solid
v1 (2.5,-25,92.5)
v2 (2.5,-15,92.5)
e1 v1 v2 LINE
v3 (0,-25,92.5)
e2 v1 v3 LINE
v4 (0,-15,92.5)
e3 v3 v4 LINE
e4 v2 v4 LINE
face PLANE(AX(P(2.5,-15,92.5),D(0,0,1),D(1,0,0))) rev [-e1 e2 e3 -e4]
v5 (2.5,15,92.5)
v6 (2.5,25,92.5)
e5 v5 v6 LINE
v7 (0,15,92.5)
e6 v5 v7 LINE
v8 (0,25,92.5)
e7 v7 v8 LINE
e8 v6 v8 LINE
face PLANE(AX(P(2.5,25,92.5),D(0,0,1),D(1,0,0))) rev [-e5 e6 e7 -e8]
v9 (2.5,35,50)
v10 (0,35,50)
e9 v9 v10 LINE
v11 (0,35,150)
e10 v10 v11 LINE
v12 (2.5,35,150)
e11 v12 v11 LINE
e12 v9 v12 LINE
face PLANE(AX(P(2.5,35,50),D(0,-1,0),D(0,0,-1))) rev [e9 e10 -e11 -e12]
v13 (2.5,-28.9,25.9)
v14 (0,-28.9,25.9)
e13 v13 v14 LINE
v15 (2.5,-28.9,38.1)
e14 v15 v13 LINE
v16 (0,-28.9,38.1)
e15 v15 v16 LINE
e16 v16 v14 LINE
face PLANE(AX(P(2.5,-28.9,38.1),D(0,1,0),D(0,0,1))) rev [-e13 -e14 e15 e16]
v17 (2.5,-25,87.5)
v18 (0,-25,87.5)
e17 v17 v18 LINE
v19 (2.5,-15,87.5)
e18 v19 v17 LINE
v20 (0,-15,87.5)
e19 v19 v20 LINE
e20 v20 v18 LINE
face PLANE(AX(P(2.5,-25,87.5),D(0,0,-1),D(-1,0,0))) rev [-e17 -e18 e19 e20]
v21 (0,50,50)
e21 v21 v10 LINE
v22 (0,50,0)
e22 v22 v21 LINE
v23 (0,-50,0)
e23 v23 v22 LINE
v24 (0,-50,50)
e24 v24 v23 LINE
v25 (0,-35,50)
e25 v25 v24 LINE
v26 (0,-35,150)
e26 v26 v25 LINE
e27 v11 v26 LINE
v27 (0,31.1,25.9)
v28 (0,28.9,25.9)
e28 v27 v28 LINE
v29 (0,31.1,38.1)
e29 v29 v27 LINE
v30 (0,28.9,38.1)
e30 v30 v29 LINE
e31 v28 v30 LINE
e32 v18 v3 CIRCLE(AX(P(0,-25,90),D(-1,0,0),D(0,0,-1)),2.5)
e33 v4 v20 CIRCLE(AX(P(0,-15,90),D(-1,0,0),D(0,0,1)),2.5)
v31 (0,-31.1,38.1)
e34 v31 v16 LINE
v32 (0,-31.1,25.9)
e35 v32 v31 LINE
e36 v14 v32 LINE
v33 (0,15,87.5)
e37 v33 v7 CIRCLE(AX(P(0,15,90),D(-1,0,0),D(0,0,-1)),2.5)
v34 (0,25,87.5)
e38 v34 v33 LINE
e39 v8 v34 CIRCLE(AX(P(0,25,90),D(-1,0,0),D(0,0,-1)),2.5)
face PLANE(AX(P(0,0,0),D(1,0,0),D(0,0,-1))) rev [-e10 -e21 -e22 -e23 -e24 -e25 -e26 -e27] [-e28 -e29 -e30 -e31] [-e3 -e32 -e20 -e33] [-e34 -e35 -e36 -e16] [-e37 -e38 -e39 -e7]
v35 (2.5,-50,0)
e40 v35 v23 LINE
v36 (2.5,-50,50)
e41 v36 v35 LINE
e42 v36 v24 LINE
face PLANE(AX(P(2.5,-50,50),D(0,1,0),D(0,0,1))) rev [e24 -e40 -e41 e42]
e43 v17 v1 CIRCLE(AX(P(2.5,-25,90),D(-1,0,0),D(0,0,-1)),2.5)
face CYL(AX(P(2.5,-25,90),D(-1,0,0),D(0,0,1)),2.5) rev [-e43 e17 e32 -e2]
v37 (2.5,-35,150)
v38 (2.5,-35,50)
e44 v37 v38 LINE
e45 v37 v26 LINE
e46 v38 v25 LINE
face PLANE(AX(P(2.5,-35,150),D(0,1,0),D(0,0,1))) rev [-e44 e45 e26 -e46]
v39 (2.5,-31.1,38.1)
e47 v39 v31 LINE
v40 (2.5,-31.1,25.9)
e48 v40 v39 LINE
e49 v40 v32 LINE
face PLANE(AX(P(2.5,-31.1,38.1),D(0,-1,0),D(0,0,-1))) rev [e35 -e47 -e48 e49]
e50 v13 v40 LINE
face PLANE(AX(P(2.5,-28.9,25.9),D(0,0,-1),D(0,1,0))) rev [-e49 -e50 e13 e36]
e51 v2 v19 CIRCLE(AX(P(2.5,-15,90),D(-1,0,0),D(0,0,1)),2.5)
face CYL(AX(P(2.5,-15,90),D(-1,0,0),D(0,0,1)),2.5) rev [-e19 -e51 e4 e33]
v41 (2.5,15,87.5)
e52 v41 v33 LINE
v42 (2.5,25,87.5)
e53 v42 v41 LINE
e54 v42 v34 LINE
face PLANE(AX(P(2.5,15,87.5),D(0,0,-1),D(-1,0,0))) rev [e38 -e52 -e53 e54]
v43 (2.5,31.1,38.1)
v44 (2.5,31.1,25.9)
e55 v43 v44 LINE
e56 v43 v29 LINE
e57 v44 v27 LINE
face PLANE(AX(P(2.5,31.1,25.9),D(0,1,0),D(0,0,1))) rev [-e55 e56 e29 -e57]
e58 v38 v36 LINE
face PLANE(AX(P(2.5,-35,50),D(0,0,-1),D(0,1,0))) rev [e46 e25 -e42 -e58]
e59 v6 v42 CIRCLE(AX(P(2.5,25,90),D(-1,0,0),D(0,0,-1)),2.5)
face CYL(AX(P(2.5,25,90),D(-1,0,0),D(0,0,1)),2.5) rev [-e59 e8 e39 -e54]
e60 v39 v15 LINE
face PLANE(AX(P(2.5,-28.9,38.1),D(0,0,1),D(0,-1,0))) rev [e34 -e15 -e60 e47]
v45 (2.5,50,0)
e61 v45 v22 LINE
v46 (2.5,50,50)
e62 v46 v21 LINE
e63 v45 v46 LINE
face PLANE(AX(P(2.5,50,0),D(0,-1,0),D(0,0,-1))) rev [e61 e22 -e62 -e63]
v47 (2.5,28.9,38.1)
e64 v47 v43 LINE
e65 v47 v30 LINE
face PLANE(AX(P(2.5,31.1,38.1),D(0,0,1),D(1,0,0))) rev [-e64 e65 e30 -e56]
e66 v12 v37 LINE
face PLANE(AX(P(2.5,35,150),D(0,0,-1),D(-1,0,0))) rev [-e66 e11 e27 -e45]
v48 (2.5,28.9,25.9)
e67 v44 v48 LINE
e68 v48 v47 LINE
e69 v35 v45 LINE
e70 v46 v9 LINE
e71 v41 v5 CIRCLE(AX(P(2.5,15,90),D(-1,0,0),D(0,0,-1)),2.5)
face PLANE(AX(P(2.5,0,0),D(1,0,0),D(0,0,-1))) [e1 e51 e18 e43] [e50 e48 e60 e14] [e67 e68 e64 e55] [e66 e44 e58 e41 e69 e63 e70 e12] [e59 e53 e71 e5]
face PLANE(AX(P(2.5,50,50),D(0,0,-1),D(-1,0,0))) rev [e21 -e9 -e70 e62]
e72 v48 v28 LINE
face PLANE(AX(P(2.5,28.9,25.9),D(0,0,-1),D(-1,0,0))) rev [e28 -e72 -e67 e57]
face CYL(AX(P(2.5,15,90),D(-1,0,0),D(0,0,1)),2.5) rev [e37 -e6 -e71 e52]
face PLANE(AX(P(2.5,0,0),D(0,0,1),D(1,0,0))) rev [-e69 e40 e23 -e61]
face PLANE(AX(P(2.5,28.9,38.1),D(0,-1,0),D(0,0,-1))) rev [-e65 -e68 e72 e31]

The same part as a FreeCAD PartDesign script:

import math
import FreeCAD as App
import Part
import Sketcher
Q = App.Units.Quantity

doc = App.newDocument("Part")
params = doc.addObject("Spreadsheet::Sheet", "Params")
for row, (alias, value) in enumerate([
    ("sketch1_width", "15 mm"),
    ("sketch1_width2", "70 mm"),
    ("sketch1_height", "50 mm"),
    ("pad1_length", "2.5 mm"),
    ("sketch2_width", "2.2 mm"),
    ("sketch2_height", "12.2 mm"),
    ("sketch3_radius", "2.5 mm"),
    ("sketch3_width", "10 mm"),
], start=1):
    params.set(f"A{row}", alias)
    params.set(f"B{row}", "=" + value)
    params.setAlias(f"B{row}", alias)

body = doc.addObject("PartDesign::Body", "Body")

sketch1 = body.newObject("Sketcher::SketchObject", "Sketch")
sketch1.AttachmentSupport = (doc.getObject("YZ_Plane"), [""])
sketch1.MapMode = "FlatFace"
sketch1.addGeometry(Part.LineSegment(App.Vector(50, 0, 0), App.Vector(50, 50, 0)), False)
sketch1.addGeometry(Part.LineSegment(App.Vector(50, 50, 0), App.Vector(35, 50, 0)), False)
sketch1.addGeometry(Part.LineSegment(App.Vector(35, 50, 0), App.Vector(35, 150, 0)), False)
sketch1.addGeometry(Part.LineSegment(App.Vector(35, 150, 0), App.Vector(-35, 150, 0)), False)
sketch1.addGeometry(Part.LineSegment(App.Vector(-35, 150, 0), App.Vector(-35, 50, 0)), False)
sketch1.addGeometry(Part.LineSegment(App.Vector(-35, 50, 0), App.Vector(-50, 50, 0)), False)
sketch1.addGeometry(Part.LineSegment(App.Vector(-50, 50, 0), App.Vector(-50, 0, 0)), False)
sketch1.addGeometry(Part.LineSegment(App.Vector(-50, 0, 0), App.Vector(50, 0, 0)), False)
sketch1.addConstraint(Sketcher.Constraint("Coincident", 0, 2, 1, 1))
sketch1.addConstraint(Sketcher.Constraint("Coincident", 1, 2, 2, 1))
sketch1.addConstraint(Sketcher.Constraint("Coincident", 2, 2, 3, 1))
sketch1.addConstraint(Sketcher.Constraint("Coincident", 3, 2, 4, 1))
sketch1.addConstraint(Sketcher.Constraint("Coincident", 4, 2, 5, 1))
sketch1.addConstraint(Sketcher.Constraint("Coincident", 5, 2, 6, 1))
sketch1.addConstraint(Sketcher.Constraint("Coincident", 6, 2, 7, 1))
sketch1.addConstraint(Sketcher.Constraint("Coincident", 7, 2, 0, 1))
sketch1.addConstraint(Sketcher.Constraint("Vertical", 0))
sketch1.addConstraint(Sketcher.Constraint("Horizontal", 1))
sketch1.addConstraint(Sketcher.Constraint("Vertical", 2))
sketch1.addConstraint(Sketcher.Constraint("Horizontal", 3))
sketch1.addConstraint(Sketcher.Constraint("Vertical", 4))
sketch1.addConstraint(Sketcher.Constraint("Horizontal", 5))
sketch1.addConstraint(Sketcher.Constraint("Vertical", 6))
sketch1.addConstraint(Sketcher.Constraint("Horizontal", 7))
sketch1.addConstraint(Sketcher.Constraint("Symmetric", 6, 2, 7, 2, -1, 1))
sketch1.addConstraint(Sketcher.Constraint("Symmetric", 1, 2, 4, 2, -2))
sketch1.addConstraint(Sketcher.Constraint("Equal", 7, 2))
sketch1.addConstraint(Sketcher.Constraint("DistanceX", 1, 2, 1, 1, Q("15 mm")))
sketch1.addConstraint(Sketcher.Constraint("DistanceX", 3, 2, 3, 1, Q("70 mm")))
sketch1.addConstraint(Sketcher.Constraint("DistanceY", 0, 1, 0, 2, Q("50 mm")))
sketch1.setExpression("Constraints[19]", "Params.sketch1_width")
sketch1.setExpression("Constraints[20]", "Params.sketch1_width2")
sketch1.setExpression("Constraints[21]", "Params.sketch1_height")
pad1 = body.newObject("PartDesign::Pad", "Pad")
pad1.Profile = sketch1
pad1.setExpression("Length", "Params.pad1_length")

sketch2 = body.newObject("Sketcher::SketchObject", "Sketch001")
sketch2.AttachmentSupport = (doc.getObject("YZ_Plane"), [""])
sketch2.MapMode = "FlatFace"
sketch2.addGeometry(Part.LineSegment(App.Vector(31.1, 38.1, 0), App.Vector(31.1, 25.9, 0)), False)
sketch2.addGeometry(Part.LineSegment(App.Vector(31.1, 25.9, 0), App.Vector(28.9, 25.9, 0)), False)
sketch2.addGeometry(Part.LineSegment(App.Vector(28.9, 25.9, 0), App.Vector(28.9, 38.1, 0)), False)
sketch2.addGeometry(Part.LineSegment(App.Vector(28.9, 38.1, 0), App.Vector(31.1, 38.1, 0)), False)
sketch2.addGeometry(Part.LineSegment(App.Vector(-28.9, 38.1, 0), App.Vector(-28.9, 25.9, 0)), False)
sketch2.addGeometry(Part.LineSegment(App.Vector(-28.9, 25.9, 0), App.Vector(-31.1, 25.9, 0)), False)
sketch2.addGeometry(Part.LineSegment(App.Vector(-31.1, 25.9, 0), App.Vector(-31.1, 38.1, 0)), False)
sketch2.addGeometry(Part.LineSegment(App.Vector(-31.1, 38.1, 0), App.Vector(-28.9, 38.1, 0)), False)
sketch2.addConstraint(Sketcher.Constraint("Coincident", 0, 2, 1, 1))
sketch2.addConstraint(Sketcher.Constraint("Coincident", 1, 2, 2, 1))
sketch2.addConstraint(Sketcher.Constraint("Coincident", 2, 2, 3, 1))
sketch2.addConstraint(Sketcher.Constraint("Coincident", 3, 2, 0, 1))
sketch2.addConstraint(Sketcher.Constraint("Coincident", 4, 2, 5, 1))
sketch2.addConstraint(Sketcher.Constraint("Coincident", 5, 2, 6, 1))
sketch2.addConstraint(Sketcher.Constraint("Coincident", 6, 2, 7, 1))
sketch2.addConstraint(Sketcher.Constraint("Coincident", 7, 2, 4, 1))
sketch2.addConstraint(Sketcher.Constraint("Vertical", 0))
sketch2.addConstraint(Sketcher.Constraint("Horizontal", 1))
sketch2.addConstraint(Sketcher.Constraint("Vertical", 2))
sketch2.addConstraint(Sketcher.Constraint("Horizontal", 3))
sketch2.addConstraint(Sketcher.Constraint("Vertical", 4))
sketch2.addConstraint(Sketcher.Constraint("Horizontal", 5))
sketch2.addConstraint(Sketcher.Constraint("Vertical", 6))
sketch2.addConstraint(Sketcher.Constraint("Horizontal", 7))
sketch2.addConstraint(Sketcher.Constraint("Symmetric", 1, 2, 4, 2, -2))
sketch2.addConstraint(Sketcher.Constraint("Symmetric", 3, 2, 6, 2, -2))
sketch2.addConstraint(Sketcher.Constraint("DistanceX", 1, 2, 1, 1, Q("2.2 mm")))
sketch2.addConstraint(Sketcher.Constraint("DistanceY", 0, 2, 0, 1, Q("12.2 mm")))
sketch2.addConstraint(Sketcher.Constraint("DistanceX", 4, 2, 0, 2, Q("60 mm")))
sketch2.addConstraint(Sketcher.Constraint("DistanceY", -1, 1, 0, 2, Q("25.9 mm")))
sketch2.setExpression("Constraints[18]", "Params.sketch2_width")
sketch2.setExpression("Constraints[19]", "Params.sketch2_height")
pocket1 = body.newObject("PartDesign::Pocket", "Pocket")
pocket1.Profile = sketch2
pocket1.Type = "ThroughAll"
pocket1.Reversed = True

sketch3 = body.newObject("Sketcher::SketchObject", "Sketch002")
sketch3.AttachmentSupport = (doc.getObject("YZ_Plane"), [""])
sketch3.MapMode = "FlatFace"
sketch3.addGeometry(Part.LineSegment(App.Vector(15, 92.5, 0), App.Vector(25, 92.5, 0)), False)
sketch3.addGeometry(Part.ArcOfCircle(Part.Circle(App.Vector(25, 90, 0), App.Vector(0, 0, 1), 2.5), math.radians(-90), math.radians(90)), False)
sketch3.addGeometry(Part.LineSegment(App.Vector(25, 87.5, 0), App.Vector(15, 87.5, 0)), False)
sketch3.addGeometry(Part.ArcOfCircle(Part.Circle(App.Vector(15, 90, 0), App.Vector(0, 0, 1), 2.5), math.radians(90), math.radians(270)), False)
sketch3.addGeometry(Part.LineSegment(App.Vector(-25, 92.5, 0), App.Vector(-15, 92.5, 0)), False)
sketch3.addGeometry(Part.ArcOfCircle(Part.Circle(App.Vector(-15, 90, 0), App.Vector(0, 0, 1), 2.5), math.radians(-90), math.radians(90)), False)
sketch3.addGeometry(Part.LineSegment(App.Vector(-15, 87.5, 0), App.Vector(-25, 87.5, 0)), False)
sketch3.addGeometry(Part.ArcOfCircle(Part.Circle(App.Vector(-25, 90, 0), App.Vector(0, 0, 1), 2.5), math.radians(90), math.radians(270)), False)
sketch3.addConstraint(Sketcher.Constraint("Tangent", 0, 2, 1, 2))
sketch3.addConstraint(Sketcher.Constraint("Tangent", 1, 1, 2, 1))
sketch3.addConstraint(Sketcher.Constraint("Tangent", 2, 2, 3, 2))
sketch3.addConstraint(Sketcher.Constraint("Tangent", 3, 1, 0, 1))
sketch3.addConstraint(Sketcher.Constraint("Tangent", 4, 2, 5, 2))
sketch3.addConstraint(Sketcher.Constraint("Tangent", 5, 1, 6, 1))
sketch3.addConstraint(Sketcher.Constraint("Tangent", 6, 2, 7, 2))
sketch3.addConstraint(Sketcher.Constraint("Tangent", 7, 1, 4, 1))
sketch3.addConstraint(Sketcher.Constraint("Horizontal", 0))
sketch3.addConstraint(Sketcher.Constraint("Horizontal", 2))
sketch3.addConstraint(Sketcher.Constraint("Horizontal", 4))
sketch3.addConstraint(Sketcher.Constraint("Horizontal", 6))
sketch3.addConstraint(Sketcher.Constraint("Equal", 3, 5))
sketch3.addConstraint(Sketcher.Constraint("Symmetric", 3, 3, 5, 3, -2))
sketch3.addConstraint(Sketcher.Constraint("Equal", 2, 4))
sketch3.addConstraint(Sketcher.Constraint("Radius", 1, Q("2.5 mm")))
sketch3.addConstraint(Sketcher.Constraint("DistanceX", 0, 1, 0, 2, Q("10 mm")))
sketch3.addConstraint(Sketcher.Constraint("DistanceX", -1, 1, 1, 3, Q("25 mm")))
sketch3.addConstraint(Sketcher.Constraint("DistanceY", -1, 1, 1, 3, Q("90 mm")))
sketch3.setExpression("Constraints[15]", "Params.sketch3_radius")
sketch3.setExpression("Constraints[16]", "Params.sketch3_width")
pocket2 = body.newObject("PartDesign::Pocket", "Pocket001")
pocket2.Profile = sketch3
pocket2.Type = "ThroughAll"
pocket2.Reversed = True

doc.recompute()
